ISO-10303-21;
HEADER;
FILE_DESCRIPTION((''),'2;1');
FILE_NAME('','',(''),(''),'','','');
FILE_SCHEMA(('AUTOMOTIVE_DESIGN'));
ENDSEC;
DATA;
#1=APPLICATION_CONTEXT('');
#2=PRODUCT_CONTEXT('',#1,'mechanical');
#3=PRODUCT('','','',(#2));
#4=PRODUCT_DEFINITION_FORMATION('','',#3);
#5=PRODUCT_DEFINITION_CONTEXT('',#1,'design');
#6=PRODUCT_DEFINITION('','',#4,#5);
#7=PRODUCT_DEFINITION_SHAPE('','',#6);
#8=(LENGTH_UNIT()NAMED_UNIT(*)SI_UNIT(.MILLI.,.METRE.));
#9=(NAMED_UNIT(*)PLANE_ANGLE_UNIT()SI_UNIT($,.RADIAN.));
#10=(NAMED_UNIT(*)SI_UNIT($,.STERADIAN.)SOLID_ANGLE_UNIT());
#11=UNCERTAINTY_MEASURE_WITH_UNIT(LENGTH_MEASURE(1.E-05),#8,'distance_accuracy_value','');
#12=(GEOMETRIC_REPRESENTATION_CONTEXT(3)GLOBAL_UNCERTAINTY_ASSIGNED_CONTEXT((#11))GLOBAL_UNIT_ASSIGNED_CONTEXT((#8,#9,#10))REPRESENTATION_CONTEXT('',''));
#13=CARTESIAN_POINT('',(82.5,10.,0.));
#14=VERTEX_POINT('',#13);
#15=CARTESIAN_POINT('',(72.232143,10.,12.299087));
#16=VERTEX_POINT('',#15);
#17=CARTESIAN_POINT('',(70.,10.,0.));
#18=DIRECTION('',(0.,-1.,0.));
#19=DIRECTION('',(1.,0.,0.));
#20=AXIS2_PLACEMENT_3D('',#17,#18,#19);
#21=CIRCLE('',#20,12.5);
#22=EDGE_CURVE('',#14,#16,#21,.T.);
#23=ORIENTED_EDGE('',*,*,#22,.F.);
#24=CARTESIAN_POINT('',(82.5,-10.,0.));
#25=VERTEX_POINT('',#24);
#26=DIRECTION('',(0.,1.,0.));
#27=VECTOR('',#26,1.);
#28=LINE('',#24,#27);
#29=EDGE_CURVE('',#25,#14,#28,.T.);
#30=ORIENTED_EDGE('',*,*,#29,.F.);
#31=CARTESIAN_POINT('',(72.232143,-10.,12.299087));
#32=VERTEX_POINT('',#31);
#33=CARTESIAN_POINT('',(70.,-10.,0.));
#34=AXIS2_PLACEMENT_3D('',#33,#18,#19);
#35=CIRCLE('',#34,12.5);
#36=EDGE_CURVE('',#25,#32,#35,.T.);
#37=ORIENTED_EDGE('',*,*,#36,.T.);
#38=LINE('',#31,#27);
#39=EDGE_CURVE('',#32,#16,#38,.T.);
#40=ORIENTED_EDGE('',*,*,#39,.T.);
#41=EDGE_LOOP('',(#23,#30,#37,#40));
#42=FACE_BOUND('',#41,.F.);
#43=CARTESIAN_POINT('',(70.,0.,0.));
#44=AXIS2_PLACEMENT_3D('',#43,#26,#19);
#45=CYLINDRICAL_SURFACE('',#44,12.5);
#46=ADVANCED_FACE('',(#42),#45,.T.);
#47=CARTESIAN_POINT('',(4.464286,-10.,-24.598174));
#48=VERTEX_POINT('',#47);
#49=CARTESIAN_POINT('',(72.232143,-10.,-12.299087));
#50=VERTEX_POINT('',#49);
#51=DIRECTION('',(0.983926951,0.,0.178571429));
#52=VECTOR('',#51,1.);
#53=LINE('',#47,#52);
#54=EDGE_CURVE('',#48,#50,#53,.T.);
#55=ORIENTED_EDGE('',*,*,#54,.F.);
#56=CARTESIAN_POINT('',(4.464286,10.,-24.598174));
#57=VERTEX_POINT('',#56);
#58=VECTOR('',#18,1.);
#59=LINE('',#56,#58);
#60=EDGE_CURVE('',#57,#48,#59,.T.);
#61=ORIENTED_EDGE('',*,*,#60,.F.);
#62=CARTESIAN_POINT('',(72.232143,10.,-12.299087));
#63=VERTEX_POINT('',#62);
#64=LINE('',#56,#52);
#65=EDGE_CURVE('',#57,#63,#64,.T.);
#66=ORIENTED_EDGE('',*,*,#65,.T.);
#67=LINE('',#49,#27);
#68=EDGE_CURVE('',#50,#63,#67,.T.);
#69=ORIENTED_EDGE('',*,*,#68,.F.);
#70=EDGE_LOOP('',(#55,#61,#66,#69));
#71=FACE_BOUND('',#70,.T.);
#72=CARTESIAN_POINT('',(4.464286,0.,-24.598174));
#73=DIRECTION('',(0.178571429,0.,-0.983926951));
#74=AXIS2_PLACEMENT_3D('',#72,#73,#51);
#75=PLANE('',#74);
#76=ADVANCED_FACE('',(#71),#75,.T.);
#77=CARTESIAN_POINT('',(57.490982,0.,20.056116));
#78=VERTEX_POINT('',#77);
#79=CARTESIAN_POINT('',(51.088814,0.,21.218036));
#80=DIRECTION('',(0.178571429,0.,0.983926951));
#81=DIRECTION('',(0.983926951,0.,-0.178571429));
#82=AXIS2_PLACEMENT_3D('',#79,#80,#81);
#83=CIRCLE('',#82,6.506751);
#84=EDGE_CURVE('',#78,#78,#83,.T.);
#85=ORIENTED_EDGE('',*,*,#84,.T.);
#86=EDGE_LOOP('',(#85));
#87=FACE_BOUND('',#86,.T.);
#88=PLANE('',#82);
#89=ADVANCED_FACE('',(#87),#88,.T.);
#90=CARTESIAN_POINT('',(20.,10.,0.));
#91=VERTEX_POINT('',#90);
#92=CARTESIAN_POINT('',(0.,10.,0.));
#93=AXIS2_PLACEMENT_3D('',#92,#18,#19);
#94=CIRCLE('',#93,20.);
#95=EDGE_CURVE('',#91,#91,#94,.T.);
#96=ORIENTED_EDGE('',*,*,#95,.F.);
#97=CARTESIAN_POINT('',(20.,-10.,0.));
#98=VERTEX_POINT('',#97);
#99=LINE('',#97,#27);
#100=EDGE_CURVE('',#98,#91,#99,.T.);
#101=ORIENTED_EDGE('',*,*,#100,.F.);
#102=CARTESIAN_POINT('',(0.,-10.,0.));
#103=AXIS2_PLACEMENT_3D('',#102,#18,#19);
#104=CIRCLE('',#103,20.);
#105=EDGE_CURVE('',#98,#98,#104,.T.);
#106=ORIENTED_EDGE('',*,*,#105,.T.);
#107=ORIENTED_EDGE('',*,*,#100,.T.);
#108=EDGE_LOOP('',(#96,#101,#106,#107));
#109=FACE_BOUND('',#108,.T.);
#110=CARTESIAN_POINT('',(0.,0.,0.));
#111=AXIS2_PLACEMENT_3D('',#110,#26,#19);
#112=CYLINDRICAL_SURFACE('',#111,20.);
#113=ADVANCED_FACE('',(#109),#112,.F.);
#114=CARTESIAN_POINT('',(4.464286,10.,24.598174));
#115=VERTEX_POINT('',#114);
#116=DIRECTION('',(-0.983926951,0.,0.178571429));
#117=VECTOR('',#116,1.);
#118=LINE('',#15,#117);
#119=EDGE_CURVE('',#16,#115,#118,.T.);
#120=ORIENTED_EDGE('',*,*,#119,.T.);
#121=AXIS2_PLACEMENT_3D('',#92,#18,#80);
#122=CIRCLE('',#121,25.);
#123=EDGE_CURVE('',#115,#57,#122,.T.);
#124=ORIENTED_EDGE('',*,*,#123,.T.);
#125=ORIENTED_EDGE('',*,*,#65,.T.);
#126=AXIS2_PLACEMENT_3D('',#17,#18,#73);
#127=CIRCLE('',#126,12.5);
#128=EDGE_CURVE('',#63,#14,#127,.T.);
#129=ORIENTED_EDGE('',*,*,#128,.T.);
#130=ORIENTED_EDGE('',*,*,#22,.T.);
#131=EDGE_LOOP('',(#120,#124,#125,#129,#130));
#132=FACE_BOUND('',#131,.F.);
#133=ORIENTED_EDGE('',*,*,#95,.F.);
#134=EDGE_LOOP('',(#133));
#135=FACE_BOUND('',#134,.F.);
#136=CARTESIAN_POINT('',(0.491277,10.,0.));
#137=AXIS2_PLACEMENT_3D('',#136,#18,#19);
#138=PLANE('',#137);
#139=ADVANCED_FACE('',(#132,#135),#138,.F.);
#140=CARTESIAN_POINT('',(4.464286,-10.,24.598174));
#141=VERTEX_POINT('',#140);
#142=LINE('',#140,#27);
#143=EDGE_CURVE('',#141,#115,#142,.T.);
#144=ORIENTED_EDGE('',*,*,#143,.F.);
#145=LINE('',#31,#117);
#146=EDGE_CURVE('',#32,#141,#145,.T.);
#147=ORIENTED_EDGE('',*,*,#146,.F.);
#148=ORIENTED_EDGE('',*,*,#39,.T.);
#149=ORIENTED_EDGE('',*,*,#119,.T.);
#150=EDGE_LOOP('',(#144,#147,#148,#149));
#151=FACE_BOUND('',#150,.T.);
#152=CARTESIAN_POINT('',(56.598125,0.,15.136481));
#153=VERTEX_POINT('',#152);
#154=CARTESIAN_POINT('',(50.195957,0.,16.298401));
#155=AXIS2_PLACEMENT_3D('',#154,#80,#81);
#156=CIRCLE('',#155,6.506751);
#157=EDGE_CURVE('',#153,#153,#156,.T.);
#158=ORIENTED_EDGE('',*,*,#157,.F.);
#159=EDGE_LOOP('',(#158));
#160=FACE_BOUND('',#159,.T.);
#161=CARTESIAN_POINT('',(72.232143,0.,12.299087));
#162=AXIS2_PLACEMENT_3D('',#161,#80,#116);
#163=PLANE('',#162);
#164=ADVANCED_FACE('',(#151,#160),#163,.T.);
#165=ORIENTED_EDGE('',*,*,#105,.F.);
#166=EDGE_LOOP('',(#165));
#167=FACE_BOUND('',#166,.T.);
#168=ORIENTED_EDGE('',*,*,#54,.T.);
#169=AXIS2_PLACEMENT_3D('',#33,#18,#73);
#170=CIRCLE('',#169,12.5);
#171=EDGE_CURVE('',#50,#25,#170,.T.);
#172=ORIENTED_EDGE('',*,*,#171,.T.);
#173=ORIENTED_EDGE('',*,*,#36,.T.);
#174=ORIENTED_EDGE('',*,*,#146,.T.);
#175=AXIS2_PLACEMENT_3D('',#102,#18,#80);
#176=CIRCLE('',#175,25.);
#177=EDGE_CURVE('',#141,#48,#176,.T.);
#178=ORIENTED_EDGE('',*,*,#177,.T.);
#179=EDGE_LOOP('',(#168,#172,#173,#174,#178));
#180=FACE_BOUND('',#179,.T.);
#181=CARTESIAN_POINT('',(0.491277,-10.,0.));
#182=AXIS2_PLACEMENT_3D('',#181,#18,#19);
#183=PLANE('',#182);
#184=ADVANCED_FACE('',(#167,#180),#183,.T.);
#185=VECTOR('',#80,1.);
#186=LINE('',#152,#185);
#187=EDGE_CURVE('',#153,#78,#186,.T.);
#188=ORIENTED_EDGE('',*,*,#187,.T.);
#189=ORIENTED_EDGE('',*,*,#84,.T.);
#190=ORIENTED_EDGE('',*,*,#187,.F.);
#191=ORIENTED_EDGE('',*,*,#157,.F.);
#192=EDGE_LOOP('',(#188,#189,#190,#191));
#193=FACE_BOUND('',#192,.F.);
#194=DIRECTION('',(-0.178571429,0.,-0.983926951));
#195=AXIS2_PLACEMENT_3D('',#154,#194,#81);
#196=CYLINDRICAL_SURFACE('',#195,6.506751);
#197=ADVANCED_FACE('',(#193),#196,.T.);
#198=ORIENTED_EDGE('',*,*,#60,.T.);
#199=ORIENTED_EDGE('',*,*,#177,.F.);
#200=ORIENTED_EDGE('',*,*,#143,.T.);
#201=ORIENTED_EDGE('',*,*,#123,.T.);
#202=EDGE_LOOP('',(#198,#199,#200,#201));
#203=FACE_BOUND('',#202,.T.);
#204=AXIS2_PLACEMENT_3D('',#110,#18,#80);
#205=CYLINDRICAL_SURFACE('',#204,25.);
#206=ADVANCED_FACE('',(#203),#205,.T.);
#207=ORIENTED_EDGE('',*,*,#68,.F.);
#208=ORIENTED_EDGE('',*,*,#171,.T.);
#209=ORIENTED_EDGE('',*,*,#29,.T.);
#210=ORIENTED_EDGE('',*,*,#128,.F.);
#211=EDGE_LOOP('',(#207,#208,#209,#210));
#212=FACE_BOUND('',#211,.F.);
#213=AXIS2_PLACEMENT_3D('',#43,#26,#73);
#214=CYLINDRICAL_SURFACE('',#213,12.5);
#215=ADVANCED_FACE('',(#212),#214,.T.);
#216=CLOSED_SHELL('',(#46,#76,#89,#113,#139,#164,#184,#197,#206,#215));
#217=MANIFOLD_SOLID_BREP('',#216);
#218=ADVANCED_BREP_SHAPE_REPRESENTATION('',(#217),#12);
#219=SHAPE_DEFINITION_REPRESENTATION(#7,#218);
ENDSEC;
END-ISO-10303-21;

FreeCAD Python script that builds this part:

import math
import FreeCAD as App
import Part
import Sketcher
Q = App.Units.Quantity

doc = App.newDocument("Part")
body = doc.addObject("PartDesign::Body", "Body")

sketch1 = body.newObject("Sketcher::SketchObject", "Sketch")
sketch1.AttachmentSupport = (doc.getObject("XZ_Plane"), [""])
sketch1.MapMode = "FlatFace"
sketch1.addGeometry([
    Part.ArcOfCircle(Part.Circle(App.Vector(0, 0, 0), App.Vector(0, 0, 1), 25), math.radians(79.713439), math.radians(280.286561)),
    Part.LineSegment(App.Vector(4.464286, -24.598174, 0), App.Vector(72.232143, -12.299087, 0)),
    Part.ArcOfCircle(Part.Circle(App.Vector(70, 0, 0), App.Vector(0, 0, 1), 12.5), math.radians(-79.713439), math.radians(0)),
    Part.ArcOfCircle(Part.Circle(App.Vector(70, 0, 0), App.Vector(0, 0, 1), 12.5), math.radians(0), math.radians(79.713439)),
    Part.LineSegment(App.Vector(72.232143, 12.299087, 0), App.Vector(4.464286, 24.598174, 0)),
    Part.Circle(App.Vector(0, 0, 0), App.Vector(0, 0, 1), 20),
], False)
sketch1.addConstraint([
    Sketcher.Constraint("Tangent", 0, 2, 1, 1),
    Sketcher.Constraint("Tangent", 1, 2, 2, 1),
    Sketcher.Constraint("Tangent", 2, 2, 3, 1),
    Sketcher.Constraint("Tangent", 3, 2, 4, 1),
    Sketcher.Constraint("Tangent", 4, 2, 0, 1),
    Sketcher.Constraint("Coincident", 0, 3, -1, 1),
    Sketcher.Constraint("Coincident", 5, 3, -1, 1),
    Sketcher.Constraint("Equal", 2, 3),
    Sketcher.Constraint("PointOnObject", 2, 3, -1),
    Sketcher.Constraint("PointOnObject", 2, 2, -1),
    Sketcher.Constraint("Diameter", 5, Q("40 mm")),
    Sketcher.Constraint("Radius", 0, Q("25 mm")),
    Sketcher.Constraint("Radius", 2, Q("12.5 mm")),
    Sketcher.Constraint("DistanceX", -1, 1, 2, 3, Q("70 mm")),
])
pad1 = body.newObject("PartDesign::Pad", "Pad")
pad1.Profile = sketch1
pad1.Length = 20
pad1.Midplane = True

sketch2 = body.newObject("Sketcher::SketchObject", "Sketch001")
sketch2.Placement = App.Placement(App.Vector(4.464286, 0, 24.598174), App.Rotation(App.Vector(0.983926951, 0, -0.178571429), App.Vector(0, 1, 0), App.Vector(0.178571429, 0, 0.983926951), "ZXY"))
sketch2.addGeometry(Part.Circle(App.Vector(46.478726, 0, 0), App.Vector(0, 0, 1), 6.506751), False)
sketch2.addConstraint([
    Sketcher.Constraint("PointOnObject", 0, 3, -1),
    Sketcher.Constraint("Diameter", 0, Q("13.013502 mm")),
    Sketcher.Constraint("DistanceX", -1, 1, 0, 3, Q("46.478726 mm")),
])
pad2 = body.newObject("PartDesign::Pad", "Pad001")
pad2.Profile = sketch2
pad2.Length = 5

doc.recompute()
